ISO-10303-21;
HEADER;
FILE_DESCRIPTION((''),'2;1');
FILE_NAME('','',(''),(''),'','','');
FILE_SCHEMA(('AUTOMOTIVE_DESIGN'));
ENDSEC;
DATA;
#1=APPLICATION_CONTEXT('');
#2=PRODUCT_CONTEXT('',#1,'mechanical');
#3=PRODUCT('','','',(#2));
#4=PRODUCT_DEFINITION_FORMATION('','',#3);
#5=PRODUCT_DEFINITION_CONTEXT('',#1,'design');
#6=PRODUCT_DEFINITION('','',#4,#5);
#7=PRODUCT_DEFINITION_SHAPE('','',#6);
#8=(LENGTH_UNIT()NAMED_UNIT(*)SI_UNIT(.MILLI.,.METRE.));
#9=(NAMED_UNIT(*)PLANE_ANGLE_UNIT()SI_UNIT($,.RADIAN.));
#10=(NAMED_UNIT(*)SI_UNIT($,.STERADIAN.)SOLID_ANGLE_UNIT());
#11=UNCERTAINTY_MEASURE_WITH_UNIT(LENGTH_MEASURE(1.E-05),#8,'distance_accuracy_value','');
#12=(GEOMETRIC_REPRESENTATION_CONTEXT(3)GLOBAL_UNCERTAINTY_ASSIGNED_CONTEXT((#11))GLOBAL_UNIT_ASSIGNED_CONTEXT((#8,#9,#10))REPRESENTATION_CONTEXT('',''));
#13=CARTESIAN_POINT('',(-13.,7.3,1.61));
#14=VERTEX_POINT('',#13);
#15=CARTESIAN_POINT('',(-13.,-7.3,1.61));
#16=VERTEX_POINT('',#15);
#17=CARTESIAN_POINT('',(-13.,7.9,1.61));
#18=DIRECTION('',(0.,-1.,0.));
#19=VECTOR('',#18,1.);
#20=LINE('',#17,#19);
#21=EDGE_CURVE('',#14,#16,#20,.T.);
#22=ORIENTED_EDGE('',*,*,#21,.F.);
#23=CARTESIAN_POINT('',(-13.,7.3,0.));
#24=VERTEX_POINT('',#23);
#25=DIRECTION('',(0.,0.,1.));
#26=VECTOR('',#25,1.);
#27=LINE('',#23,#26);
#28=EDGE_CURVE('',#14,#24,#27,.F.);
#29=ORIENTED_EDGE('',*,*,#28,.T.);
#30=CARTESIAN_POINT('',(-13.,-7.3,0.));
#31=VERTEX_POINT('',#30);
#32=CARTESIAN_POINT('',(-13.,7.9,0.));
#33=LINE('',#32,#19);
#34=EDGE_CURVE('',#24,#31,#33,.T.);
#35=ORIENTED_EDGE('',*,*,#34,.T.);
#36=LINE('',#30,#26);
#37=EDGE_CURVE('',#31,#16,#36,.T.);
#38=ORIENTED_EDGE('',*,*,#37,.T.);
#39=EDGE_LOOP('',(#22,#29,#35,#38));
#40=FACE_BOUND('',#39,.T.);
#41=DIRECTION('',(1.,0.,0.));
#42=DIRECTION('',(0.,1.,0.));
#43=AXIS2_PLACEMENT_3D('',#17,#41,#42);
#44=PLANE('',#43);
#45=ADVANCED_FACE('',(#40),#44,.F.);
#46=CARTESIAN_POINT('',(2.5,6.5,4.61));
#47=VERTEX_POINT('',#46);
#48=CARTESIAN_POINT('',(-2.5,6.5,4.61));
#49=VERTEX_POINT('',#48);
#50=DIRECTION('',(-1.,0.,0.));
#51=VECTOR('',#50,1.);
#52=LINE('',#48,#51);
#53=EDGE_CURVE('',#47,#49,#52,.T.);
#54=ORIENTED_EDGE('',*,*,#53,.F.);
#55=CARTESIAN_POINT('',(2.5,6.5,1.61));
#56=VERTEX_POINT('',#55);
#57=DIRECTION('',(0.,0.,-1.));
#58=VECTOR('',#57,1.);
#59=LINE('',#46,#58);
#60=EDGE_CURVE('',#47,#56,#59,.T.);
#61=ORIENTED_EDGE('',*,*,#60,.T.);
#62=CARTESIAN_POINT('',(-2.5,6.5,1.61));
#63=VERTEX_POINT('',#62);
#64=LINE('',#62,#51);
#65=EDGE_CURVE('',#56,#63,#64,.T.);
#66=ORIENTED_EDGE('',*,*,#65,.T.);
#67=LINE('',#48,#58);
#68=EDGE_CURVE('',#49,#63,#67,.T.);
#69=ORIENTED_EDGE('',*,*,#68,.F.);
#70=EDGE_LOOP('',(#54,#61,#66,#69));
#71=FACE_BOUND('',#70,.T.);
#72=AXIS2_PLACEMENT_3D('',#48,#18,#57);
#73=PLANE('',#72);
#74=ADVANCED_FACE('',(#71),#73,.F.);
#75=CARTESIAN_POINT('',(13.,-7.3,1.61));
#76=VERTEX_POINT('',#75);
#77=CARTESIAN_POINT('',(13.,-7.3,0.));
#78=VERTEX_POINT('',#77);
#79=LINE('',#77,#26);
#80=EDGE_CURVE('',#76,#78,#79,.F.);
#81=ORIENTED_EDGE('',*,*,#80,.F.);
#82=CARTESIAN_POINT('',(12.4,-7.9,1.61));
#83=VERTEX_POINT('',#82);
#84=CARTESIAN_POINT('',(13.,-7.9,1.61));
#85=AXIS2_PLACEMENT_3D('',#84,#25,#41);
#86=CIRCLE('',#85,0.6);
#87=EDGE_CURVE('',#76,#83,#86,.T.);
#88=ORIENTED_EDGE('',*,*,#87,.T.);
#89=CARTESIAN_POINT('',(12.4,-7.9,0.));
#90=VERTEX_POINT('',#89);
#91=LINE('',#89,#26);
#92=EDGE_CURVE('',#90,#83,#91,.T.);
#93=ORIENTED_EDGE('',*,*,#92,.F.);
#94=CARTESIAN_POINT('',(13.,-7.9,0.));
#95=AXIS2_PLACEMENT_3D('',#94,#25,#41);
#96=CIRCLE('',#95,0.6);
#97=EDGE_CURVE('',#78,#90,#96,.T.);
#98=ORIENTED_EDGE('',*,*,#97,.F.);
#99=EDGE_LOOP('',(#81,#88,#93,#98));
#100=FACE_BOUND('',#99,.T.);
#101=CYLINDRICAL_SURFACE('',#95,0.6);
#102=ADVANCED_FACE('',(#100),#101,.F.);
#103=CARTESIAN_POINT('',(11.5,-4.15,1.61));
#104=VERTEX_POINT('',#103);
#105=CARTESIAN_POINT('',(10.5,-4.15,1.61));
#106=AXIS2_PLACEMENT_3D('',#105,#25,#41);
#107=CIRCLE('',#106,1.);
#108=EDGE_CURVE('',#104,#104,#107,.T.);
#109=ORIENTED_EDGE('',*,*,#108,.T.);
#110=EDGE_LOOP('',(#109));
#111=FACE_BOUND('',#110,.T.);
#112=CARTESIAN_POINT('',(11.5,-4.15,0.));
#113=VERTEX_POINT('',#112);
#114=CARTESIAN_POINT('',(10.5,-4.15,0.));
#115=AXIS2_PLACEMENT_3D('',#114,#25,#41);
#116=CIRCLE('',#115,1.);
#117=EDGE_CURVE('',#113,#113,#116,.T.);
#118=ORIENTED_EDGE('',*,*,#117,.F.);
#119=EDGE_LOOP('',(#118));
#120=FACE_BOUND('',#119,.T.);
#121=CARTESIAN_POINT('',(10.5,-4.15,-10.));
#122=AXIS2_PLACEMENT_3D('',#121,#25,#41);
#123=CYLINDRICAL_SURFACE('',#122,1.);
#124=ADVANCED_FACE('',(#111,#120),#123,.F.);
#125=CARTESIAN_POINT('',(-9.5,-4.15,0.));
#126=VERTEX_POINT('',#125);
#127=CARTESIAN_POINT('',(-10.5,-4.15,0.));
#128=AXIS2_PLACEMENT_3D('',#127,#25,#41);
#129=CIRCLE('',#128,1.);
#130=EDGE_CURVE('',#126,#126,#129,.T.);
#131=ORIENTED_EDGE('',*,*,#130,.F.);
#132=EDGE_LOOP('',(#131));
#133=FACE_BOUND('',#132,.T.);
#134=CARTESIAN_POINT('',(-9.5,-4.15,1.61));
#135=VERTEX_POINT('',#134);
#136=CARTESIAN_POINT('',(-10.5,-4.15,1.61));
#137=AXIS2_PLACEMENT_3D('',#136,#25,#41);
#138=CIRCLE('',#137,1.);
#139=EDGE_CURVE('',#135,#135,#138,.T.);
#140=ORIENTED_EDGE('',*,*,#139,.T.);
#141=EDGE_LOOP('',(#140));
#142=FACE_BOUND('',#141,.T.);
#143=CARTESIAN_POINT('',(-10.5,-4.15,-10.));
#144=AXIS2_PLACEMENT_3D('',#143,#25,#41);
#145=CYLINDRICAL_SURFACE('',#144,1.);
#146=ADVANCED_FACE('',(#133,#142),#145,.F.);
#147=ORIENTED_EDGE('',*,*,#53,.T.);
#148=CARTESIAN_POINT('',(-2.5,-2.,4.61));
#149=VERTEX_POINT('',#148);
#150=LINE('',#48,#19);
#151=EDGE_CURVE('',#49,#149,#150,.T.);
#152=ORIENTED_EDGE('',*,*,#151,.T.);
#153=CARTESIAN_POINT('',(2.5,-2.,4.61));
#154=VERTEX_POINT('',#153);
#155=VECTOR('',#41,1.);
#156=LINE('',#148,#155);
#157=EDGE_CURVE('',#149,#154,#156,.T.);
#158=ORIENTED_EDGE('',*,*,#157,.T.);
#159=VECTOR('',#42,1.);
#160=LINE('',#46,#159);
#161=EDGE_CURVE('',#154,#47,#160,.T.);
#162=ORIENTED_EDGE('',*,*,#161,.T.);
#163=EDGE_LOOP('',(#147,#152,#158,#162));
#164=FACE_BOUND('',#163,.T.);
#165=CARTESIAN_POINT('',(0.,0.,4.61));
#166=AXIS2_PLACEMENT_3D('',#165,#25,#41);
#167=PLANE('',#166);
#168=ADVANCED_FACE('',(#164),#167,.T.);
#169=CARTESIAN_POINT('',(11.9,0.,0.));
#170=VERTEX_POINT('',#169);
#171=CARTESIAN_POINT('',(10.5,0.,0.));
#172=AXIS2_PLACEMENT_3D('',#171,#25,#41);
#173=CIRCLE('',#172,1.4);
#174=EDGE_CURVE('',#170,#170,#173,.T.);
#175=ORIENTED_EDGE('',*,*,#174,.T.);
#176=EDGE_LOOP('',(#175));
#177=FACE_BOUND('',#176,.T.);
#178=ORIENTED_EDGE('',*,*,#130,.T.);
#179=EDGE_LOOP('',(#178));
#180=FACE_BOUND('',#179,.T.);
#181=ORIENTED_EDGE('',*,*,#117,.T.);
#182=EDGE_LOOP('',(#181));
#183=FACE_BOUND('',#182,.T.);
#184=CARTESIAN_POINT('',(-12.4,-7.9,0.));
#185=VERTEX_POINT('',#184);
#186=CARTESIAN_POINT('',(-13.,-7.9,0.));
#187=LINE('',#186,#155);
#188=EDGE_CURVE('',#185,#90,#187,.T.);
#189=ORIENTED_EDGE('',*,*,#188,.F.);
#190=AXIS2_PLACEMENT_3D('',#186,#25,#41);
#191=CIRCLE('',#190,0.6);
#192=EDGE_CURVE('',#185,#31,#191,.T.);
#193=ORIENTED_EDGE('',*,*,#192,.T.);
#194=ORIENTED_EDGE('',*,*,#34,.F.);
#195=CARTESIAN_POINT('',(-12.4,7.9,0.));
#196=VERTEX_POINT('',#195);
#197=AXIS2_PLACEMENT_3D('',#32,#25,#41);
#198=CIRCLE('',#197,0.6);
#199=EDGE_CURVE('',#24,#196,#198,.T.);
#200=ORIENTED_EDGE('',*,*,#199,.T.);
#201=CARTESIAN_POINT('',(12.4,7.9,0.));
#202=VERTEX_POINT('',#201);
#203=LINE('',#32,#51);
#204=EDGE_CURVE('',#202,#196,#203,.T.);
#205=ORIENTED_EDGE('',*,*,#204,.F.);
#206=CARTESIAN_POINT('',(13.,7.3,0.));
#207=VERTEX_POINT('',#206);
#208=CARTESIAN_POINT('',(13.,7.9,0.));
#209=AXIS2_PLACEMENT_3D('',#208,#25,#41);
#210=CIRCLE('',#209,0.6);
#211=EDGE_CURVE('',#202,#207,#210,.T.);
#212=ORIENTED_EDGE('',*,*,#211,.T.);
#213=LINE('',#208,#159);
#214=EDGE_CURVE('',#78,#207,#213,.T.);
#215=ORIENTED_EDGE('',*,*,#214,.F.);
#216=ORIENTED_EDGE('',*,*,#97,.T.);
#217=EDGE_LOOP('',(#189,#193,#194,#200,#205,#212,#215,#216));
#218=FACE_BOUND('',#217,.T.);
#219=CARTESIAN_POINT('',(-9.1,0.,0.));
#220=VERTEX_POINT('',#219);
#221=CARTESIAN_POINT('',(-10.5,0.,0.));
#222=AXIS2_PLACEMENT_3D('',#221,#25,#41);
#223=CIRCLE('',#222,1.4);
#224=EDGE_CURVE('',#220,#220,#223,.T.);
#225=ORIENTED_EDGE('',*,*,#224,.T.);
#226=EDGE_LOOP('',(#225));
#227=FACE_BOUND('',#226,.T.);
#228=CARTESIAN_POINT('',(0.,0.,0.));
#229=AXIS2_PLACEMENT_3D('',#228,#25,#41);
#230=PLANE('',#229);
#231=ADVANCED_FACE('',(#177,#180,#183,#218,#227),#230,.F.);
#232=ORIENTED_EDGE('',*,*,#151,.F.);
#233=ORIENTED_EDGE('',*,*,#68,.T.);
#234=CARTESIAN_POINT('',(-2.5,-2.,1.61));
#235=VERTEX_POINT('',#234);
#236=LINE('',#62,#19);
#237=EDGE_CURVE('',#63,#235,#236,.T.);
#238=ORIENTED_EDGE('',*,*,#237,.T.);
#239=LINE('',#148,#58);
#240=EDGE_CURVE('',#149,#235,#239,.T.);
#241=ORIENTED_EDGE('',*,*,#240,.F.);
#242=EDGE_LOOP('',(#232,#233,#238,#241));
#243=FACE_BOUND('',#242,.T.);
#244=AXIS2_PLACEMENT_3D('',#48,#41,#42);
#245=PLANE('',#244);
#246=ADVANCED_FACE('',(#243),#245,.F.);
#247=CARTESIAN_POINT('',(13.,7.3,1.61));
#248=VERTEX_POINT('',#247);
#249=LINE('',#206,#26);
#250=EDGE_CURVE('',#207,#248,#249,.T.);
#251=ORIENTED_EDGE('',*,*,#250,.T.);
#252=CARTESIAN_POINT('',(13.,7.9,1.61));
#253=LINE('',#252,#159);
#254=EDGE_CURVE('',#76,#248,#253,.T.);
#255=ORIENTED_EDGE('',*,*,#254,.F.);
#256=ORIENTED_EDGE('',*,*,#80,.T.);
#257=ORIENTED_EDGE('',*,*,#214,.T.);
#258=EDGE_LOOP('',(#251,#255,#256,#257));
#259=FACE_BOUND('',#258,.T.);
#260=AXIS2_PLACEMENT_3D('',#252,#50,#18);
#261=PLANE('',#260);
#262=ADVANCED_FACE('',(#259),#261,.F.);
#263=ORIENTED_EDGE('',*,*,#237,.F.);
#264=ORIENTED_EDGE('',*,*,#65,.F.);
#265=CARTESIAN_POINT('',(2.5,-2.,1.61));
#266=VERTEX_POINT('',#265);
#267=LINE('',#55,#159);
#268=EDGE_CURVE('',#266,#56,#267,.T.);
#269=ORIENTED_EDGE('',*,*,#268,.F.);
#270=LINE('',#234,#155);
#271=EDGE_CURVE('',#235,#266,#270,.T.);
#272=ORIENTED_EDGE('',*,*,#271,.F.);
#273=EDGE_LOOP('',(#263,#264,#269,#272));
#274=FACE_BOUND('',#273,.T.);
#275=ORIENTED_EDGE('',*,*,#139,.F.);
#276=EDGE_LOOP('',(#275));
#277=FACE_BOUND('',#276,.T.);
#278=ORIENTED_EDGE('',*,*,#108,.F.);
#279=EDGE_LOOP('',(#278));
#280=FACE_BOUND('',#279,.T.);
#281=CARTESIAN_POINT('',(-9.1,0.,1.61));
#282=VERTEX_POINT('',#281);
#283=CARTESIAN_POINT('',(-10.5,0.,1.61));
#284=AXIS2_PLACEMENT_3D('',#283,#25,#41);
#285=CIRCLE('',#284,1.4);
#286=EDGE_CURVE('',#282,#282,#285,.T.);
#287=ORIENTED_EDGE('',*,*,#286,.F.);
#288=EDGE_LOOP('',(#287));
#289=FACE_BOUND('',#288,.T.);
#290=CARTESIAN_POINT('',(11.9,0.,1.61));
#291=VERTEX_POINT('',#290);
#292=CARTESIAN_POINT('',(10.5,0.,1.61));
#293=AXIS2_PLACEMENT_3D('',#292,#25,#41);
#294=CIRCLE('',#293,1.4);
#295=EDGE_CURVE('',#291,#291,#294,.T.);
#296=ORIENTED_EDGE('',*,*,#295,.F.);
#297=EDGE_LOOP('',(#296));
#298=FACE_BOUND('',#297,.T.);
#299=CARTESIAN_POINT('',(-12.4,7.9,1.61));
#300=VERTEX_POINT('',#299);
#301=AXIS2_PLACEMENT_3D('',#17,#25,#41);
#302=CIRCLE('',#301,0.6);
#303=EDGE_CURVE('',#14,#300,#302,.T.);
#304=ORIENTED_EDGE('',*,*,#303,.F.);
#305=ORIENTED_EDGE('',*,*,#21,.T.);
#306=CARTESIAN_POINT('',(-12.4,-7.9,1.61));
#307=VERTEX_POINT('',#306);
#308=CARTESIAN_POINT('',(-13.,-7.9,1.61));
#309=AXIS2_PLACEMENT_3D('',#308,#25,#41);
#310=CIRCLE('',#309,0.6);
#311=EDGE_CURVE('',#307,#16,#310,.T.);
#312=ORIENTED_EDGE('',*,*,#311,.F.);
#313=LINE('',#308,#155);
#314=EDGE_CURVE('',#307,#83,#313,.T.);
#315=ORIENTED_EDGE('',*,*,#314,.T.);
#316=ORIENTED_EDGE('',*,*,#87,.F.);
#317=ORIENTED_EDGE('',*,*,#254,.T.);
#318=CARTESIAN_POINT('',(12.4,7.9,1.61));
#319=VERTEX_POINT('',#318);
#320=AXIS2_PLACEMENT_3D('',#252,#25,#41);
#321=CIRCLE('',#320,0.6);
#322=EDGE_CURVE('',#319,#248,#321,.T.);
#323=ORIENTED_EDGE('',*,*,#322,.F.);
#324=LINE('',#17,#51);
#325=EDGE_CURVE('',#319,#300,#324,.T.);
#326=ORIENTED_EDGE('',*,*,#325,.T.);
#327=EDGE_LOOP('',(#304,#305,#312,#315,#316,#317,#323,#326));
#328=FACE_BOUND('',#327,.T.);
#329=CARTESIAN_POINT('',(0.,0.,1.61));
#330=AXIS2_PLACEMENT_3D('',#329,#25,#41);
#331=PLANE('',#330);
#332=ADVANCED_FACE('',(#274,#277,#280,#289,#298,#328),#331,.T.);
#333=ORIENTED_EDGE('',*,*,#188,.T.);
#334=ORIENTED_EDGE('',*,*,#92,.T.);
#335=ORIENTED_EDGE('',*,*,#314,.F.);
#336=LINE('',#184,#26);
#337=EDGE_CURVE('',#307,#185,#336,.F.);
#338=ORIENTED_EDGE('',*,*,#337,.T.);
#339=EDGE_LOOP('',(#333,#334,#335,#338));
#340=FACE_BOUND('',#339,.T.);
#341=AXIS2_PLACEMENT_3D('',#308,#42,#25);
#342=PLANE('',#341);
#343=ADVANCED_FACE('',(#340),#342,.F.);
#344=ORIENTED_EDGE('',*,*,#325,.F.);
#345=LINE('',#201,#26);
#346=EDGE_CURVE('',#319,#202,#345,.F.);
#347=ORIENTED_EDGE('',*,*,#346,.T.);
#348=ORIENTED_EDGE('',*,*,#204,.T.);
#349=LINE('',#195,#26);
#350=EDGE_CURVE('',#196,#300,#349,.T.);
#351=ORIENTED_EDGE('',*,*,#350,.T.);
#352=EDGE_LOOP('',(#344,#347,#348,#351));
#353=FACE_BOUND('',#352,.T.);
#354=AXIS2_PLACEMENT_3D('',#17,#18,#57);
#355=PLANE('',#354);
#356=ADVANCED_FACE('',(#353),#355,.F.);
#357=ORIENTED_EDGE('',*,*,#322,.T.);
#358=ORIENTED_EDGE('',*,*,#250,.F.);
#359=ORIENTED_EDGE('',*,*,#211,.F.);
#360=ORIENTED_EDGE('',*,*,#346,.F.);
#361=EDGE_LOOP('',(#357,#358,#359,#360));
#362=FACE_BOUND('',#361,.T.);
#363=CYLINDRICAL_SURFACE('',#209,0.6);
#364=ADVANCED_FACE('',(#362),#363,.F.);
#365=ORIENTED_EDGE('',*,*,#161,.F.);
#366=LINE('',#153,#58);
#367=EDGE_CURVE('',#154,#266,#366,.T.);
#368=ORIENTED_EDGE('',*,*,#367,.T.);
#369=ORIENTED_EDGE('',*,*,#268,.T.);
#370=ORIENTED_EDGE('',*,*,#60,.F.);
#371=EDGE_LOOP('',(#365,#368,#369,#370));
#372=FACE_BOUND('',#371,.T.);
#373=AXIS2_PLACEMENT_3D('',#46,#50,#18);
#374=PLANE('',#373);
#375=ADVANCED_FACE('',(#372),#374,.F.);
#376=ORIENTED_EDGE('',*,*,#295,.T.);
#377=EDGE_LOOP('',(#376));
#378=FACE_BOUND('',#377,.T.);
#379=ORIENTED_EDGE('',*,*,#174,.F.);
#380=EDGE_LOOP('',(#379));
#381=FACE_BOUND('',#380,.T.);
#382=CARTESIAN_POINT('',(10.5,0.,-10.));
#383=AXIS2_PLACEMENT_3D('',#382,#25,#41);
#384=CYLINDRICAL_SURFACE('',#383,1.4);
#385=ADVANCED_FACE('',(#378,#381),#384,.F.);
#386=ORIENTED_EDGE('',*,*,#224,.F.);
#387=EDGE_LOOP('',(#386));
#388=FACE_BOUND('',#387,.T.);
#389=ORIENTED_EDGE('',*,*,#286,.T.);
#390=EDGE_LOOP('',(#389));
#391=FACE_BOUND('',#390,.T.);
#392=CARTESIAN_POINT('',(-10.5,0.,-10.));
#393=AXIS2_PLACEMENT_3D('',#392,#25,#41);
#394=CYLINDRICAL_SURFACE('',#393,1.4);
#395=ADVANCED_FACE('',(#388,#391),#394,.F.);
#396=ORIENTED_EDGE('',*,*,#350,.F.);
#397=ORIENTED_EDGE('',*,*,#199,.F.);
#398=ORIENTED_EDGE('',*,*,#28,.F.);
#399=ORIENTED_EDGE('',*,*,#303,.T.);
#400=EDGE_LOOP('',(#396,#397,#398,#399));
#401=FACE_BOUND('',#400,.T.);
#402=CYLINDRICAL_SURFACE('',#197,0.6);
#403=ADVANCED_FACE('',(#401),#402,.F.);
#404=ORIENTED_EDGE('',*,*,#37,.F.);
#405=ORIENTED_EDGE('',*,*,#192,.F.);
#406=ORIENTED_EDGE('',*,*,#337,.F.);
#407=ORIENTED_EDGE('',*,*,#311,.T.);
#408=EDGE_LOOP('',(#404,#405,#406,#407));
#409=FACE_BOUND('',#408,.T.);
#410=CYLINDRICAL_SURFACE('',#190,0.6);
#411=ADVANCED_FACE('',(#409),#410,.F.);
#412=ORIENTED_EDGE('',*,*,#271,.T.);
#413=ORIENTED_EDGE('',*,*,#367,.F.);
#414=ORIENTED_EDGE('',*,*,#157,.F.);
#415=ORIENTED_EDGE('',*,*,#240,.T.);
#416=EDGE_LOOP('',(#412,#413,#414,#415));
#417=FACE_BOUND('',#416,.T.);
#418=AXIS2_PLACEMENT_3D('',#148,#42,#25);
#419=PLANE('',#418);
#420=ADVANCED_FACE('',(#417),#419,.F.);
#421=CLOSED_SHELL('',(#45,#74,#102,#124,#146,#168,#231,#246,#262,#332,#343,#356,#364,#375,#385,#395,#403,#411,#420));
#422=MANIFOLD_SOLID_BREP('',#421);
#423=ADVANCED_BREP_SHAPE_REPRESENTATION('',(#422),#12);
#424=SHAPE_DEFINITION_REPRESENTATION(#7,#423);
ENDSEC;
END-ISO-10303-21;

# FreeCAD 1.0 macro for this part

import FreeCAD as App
import Part
import Sketcher

V = App.Vector

doc = App.newDocument("Part")
body = doc.addObject("PartDesign::Body", "Body")

sketch1 = body.newObject("Sketcher::SketchObject", "Sketch")
sketch1.AttachmentSupport = (doc.getObject("XY_Plane"), [""])
sketch1.MapMode = "FlatFace"
sketch1.addGeometry(Part.LineSegment(V(-13, 7.9, 0), V(-13, -7.9, 0)), False)
sketch1.addGeometry(Part.LineSegment(V(-13, -7.9, 0), V(13, -7.9, 0)), False)
sketch1.addGeometry(Part.LineSegment(V(13, -7.9, 0), V(13, 7.9, 0)), False)
sketch1.addGeometry(Part.LineSegment(V(13, 7.9, 0), V(-13, 7.9, 0)), False)
sketch1.addConstraint(Sketcher.Constraint("Coincident", 0, 2, 1, 1))
sketch1.addConstraint(Sketcher.Constraint("Coincident", 1, 2, 2, 1))
sketch1.addConstraint(Sketcher.Constraint("Coincident", 2, 2, 3, 1))
sketch1.addConstraint(Sketcher.Constraint("Coincident", 3, 2, 0, 1))
sketch1.addConstraint(Sketcher.Constraint("Vertical", 0))
sketch1.addConstraint(Sketcher.Constraint("Horizontal", 1))
sketch1.addConstraint(Sketcher.Constraint("Vertical", 2))
sketch1.addConstraint(Sketcher.Constraint("Horizontal", 3))
sketch1.addConstraint(Sketcher.Constraint("Symmetric", 0, 2, 2, 2, -1, 1))
sketch1.addConstraint(Sketcher.Constraint("DistanceX", 1, 1, 1, 2, 26.0))
sketch1.addConstraint(Sketcher.Constraint("DistanceY", 0, 2, 0, 1, 15.8))
pad1 = body.newObject("PartDesign::Pad", "Pad")
pad1.Profile = sketch1
pad1.Length = 1.61

sketch2 = body.newObject("Sketcher::SketchObject", "Sketch001")
sketch2.AttachmentSupport = (doc.getObject("XY_Plane"), [""])
sketch2.MapMode = "FlatFace"
sketch2.AttachmentOffset = App.Placement(V(0, 0, 1.61), App.Rotation())
sketch2.addGeometry(Part.Circle(V(-13, 7.9, 0), V(0, 0, 1), 0.6), False)
sketch2.addGeometry(Part.Circle(V(-13, -7.9, 0), V(0, 0, 1), 0.6), False)
sketch2.addGeometry(Part.Circle(V(13, -7.9, 0), V(0, 0, 1), 0.6), False)
sketch2.addGeometry(Part.Circle(V(13, 7.9, 0), V(0, 0, 1), 0.6), False)
sketch2.addConstraint(Sketcher.Constraint("Equal", 0, 1))
sketch2.addConstraint(Sketcher.Constraint("Equal", 1, 2))
sketch2.addConstraint(Sketcher.Constraint("Equal", 2, 3))
sketch2.addConstraint(Sketcher.Constraint("Symmetric", 0, 3, 2, 3, -1, 1))
sketch2.addConstraint(Sketcher.Constraint("Symmetric", 1, 3, 3, 3, -1, 1))
sketch2.addConstraint(Sketcher.Constraint("Symmetric", 1, 3, 2, 3, -2))
sketch2.addConstraint(Sketcher.Constraint("Diameter", 0, 1.2))
sketch2.addConstraint(Sketcher.Constraint("DistanceX", 0, 3, -1, 1, 13.0))
sketch2.addConstraint(Sketcher.Constraint("DistanceY", -1, 1, 0, 3, 7.9))
pocket1 = body.newObject("PartDesign::Pocket", "Pocket")
pocket1.Profile = sketch2
pocket1.Length = 1.61

sketch3 = body.newObject("Sketcher::SketchObject", "Sketch002")
sketch3.AttachmentSupport = (doc.getObject("XY_Plane"), [""])
sketch3.MapMode = "FlatFace"
sketch3.AttachmentOffset = App.Placement(V(0, 0, 1.61), App.Rotation())
sketch3.addGeometry(Part.Circle(V(-10.5, 0, 0), V(0, 0, 1), 1.4), False)
sketch3.addGeometry(Part.Circle(V(10.5, 0, 0), V(0, 0, 1), 1.4), False)
sketch3.addGeometry(Part.Circle(V(-10.5, -4.15, 0), V(0, 0, 1), 1), False)
sketch3.addGeometry(Part.Circle(V(10.5, -4.15, 0), V(0, 0, 1), 1), False)
sketch3.addConstraint(Sketcher.Constraint("Equal", 0, 1))
sketch3.addConstraint(Sketcher.Constraint("Equal", 2, 3))
sketch3.addConstraint(Sketcher.Constraint("Symmetric", 0, 3, 1, 3, -1, 1))
sketch3.addConstraint(Sketcher.Constraint("Symmetric", 2, 3, 3, 3, -2))
sketch3.addConstraint(Sketcher.Constraint("PointOnObject", 0, 3, -1))
sketch3.addConstraint(Sketcher.Constraint("Vertical", 0, 3, 2, 3))
sketch3.addConstraint(Sketcher.Constraint("Diameter", 2, 2.0))
sketch3.addConstraint(Sketcher.Constraint("Diameter", 0, 2.8))
sketch3.addConstraint(Sketcher.Constraint("DistanceX", 0, 3, 1, 3, 21.0))
sketch3.addConstraint(Sketcher.Constraint("DistanceY", 2, 3, -1, 1, 4.15))
pocket2 = body.newObject("PartDesign::Pocket", "Pocket001")
pocket2.Profile = sketch3
pocket2.Length = 11.61

sketch4 = body.newObject("Sketcher::SketchObject", "Sketch003")
sketch4.AttachmentSupport = (doc.getObject("XY_Plane"), [""])
sketch4.MapMode = "FlatFace"
sketch4.AttachmentOffset = App.Placement(V(0, 0, 1.61), App.Rotation())
sketch4.addGeometry(Part.LineSegment(V(-2.5, 6.5, 0), V(-2.5, -2, 0)), False)
sketch4.addGeometry(Part.LineSegment(V(-2.5, -2, 0), V(2.5, -2, 0)), False)
sketch4.addGeometry(Part.LineSegment(V(2.5, -2, 0), V(2.5, 6.5, 0)), False)
sketch4.addGeometry(Part.LineSegment(V(2.5, 6.5, 0), V(-2.5, 6.5, 0)), False)
sketch4.addConstraint(Sketcher.Constraint("Coincident", 0, 2, 1, 1))
sketch4.addConstraint(Sketcher.Constraint("Coincident", 1, 2, 2, 1))
sketch4.addConstraint(Sketcher.Constraint("Coincident", 2, 2, 3, 1))
sketch4.addConstraint(Sketcher.Constraint("Coincident", 3, 2, 0, 1))
sketch4.addConstraint(Sketcher.Constraint("Vertical", 0))
sketch4.addConstraint(Sketcher.Constraint("Horizontal", 1))
sketch4.addConstraint(Sketcher.Constraint("Vertical", 2))
sketch4.addConstraint(Sketcher.Constraint("Horizontal", 3))
sketch4.addConstraint(Sketcher.Constraint("DistanceX", 1, 1, 1, 2, 5.0))
sketch4.addConstraint(Sketcher.Constraint("DistanceY", 0, 2, 0, 1, 8.5))
sketch4.addConstraint(Sketcher.Constraint("DistanceY", 0, 2, -1, 1, 2.0))
sketch4.addConstraint(Sketcher.Constraint("DistanceX", 0, 2, -1, 1, 2.5))
pad2 = body.newObject("PartDesign::Pad", "Pad001")
pad2.Profile = sketch4
pad2.Length = 3

doc.recompute()
